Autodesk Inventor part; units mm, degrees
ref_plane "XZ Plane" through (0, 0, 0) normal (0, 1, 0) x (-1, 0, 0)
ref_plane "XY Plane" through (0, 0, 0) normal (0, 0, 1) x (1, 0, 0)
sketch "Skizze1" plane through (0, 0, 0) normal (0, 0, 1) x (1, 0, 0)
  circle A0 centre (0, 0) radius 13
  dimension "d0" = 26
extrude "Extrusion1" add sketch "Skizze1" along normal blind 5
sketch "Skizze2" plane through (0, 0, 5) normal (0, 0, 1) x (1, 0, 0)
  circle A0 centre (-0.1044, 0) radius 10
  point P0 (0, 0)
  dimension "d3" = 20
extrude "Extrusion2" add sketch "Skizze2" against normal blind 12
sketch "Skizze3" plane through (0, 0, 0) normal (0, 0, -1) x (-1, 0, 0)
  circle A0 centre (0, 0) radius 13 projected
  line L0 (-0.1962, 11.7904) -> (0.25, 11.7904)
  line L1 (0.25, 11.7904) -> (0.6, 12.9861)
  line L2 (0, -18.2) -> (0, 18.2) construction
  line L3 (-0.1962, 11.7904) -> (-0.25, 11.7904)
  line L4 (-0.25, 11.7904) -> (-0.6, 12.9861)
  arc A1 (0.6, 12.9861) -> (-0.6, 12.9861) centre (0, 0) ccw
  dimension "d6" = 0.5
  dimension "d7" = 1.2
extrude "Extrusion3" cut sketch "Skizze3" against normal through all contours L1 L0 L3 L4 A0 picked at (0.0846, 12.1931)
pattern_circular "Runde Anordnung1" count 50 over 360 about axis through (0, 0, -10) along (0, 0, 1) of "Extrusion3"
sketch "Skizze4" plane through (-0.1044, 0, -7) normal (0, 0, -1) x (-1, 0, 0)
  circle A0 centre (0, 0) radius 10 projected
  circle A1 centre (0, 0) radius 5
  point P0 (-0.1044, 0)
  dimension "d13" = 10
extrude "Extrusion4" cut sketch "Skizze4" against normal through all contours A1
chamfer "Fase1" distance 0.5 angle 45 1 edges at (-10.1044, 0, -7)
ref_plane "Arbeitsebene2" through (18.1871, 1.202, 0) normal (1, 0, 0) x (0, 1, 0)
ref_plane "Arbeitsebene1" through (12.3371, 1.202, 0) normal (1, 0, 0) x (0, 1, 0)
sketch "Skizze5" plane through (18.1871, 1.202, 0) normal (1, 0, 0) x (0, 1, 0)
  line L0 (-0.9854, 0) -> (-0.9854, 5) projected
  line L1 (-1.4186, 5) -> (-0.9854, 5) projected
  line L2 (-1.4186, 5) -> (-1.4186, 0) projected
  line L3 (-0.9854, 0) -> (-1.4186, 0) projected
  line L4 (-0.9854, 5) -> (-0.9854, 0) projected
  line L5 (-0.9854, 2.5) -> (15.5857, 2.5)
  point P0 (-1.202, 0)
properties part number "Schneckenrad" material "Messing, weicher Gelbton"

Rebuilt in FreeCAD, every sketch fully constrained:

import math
import FreeCAD as App
import Part
import Sketcher
from FreeCAD import Vector
Q = App.Units.Quantity


def edges_at(feature, points):
    """Names of the edges that pass closest to the given points."""
    edges = feature.Shape.Edges
    near = lambda p: min(range(len(edges)), key=lambda i: edges[i].distToShape(Part.Vertex(*p))[0])
    return sorted({f"Edge{near(p) + 1}" for p in points})

doc = App.newDocument("Part")
body = doc.addObject("PartDesign::Body", "Body")

# Sketch on XY plane
sketch1 = doc.addObject("Sketcher::SketchObject", "Sketch")
body.addObject(sketch1)
sketch1.AttachmentSupport = (doc.XY_Plane, [""])
sketch1.MapMode = "FlatFace"
sketch1.addGeometry(Part.Circle(Vector(0, 0, 0), Vector(0, 0, 1), 13), False)
sketch1.addConstraint(Sketcher.Constraint("Coincident", 0, 3, -1, 1))
sketch1.addConstraint(Sketcher.Constraint("Diameter", 0, Q("26 mm")))
pad1 = doc.addObject("PartDesign::Pad", "Pad")
body.addObject(pad1)
pad1.Profile = sketch1
pad1.Length = 5

# Sketch on XY plane
sketch2 = doc.addObject("Sketcher::SketchObject", "Sketch001")
body.addObject(sketch2)
sketch2.AttachmentSupport = (doc.XY_Plane, [""])
sketch2.MapMode = "FlatFace"
sketch2.AttachmentOffset = App.Placement(Vector(0, 0, 5), App.Rotation())
sketch2.addGeometry(Part.Circle(Vector(0, 0, 0), Vector(0, 0, 1), 10), False)
sketch2.addConstraint(Sketcher.Constraint("PointOnObject", 0, 3, -1))
sketch2.addConstraint(Sketcher.Constraint("Diameter", 0, Q("20 mm")))
sketch2.addConstraint(Sketcher.Constraint("DistanceX", 0, 3, -1, 1, Q("0.1044 mm")))
pad2 = doc.addObject("PartDesign::Pad", "Pad001")
body.addObject(pad2)
pad2.Profile = sketch2
pad2.Length = 12
pad2.Reversed = True

# Sketch on XY plane
sketch3 = doc.addObject("Sketcher::SketchObject", "Sketch002")
body.addObject(sketch3)
sketch3.AttachmentSupport = (doc.XY_Plane, [""])
sketch3.MapMode = "FlatFace"
sketch3.addGeometry(Part.LineSegment(Vector(-0.2, 11.8, 0), Vector(-0.6, 13, 0)), False)
sketch3.addGeometry(Part.ArcOfCircle(Part.Circle(Vector(0, 0, 0), Vector(0, 0, 1), 13), math.radians(87.35), math.radians(92.65)), False)
sketch3.addGeometry(Part.LineSegment(Vector(0.6, 13, 0), Vector(0.2, 11.8, 0)), False)
sketch3.addGeometry(Part.LineSegment(Vector(0.2, 11.8, 0), Vector(-0.2, 11.8, 0)), False)
sketch3.addConstraint(Sketcher.Constraint("Coincident", 0, 2, 1, 2))
sketch3.addConstraint(Sketcher.Constraint("Coincident", 1, 1, 2, 1))
sketch3.addConstraint(Sketcher.Constraint("Coincident", 2, 2, 3, 1))
sketch3.addConstraint(Sketcher.Constraint("Coincident", 3, 2, 0, 1))
sketch3.addConstraint(Sketcher.Constraint("Horizontal", 3))
sketch3.addConstraint(Sketcher.Constraint("Coincident", 1, 3, -1, 1))
sketch3.addConstraint(Sketcher.Constraint("Horizontal", 0, 2, 1, 1))
sketch3.addConstraint(Sketcher.Constraint("Equal", 0, 2))
sketch3.addConstraint(Sketcher.Constraint("DistanceX", 3, 2, 3, 1, Q("0.5 mm")))
sketch3.addConstraint(Sketcher.Constraint("Radius", 1, Q("13 mm")))
sketch3.addConstraint(Sketcher.Constraint("DistanceX", 0, 2, 1, 1, Q("1.2 mm")))
sketch3.addConstraint(Sketcher.Constraint("Distance", 0, Q("1.2459 mm")))
pocket1 = doc.addObject("PartDesign::Pocket", "Pocket")
body.addObject(pocket1)
pocket1.Profile = sketch3
pocket1.Type = "ThroughAll"
pocket1.Reversed = True
doc.recompute()

polarpattern = doc.addObject("PartDesign::PolarPattern", "PolarPattern")
body.addObject(polarpattern)
polarpattern.Originals = [pocket1]
polarpattern.Axis = (doc.Z_Axis, [""])
polarpattern.Angle = 360
polarpattern.Occurrences = 50
body.Tip = polarpattern

# Sketch on XY plane
sketch4 = doc.addObject("Sketcher::SketchObject", "Sketch003")
body.addObject(sketch4)
sketch4.AttachmentSupport = (doc.XY_Plane, [""])
sketch4.MapMode = "FlatFace"
sketch4.AttachmentOffset = App.Placement(Vector(0, 0, -7), App.Rotation())
sketch4.addGeometry(Part.Circle(Vector(0, 0, 0), Vector(0, 0, 1), 5), False)
sketch4.addConstraint(Sketcher.Constraint("PointOnObject", 0, 3, -1))
sketch4.addConstraint(Sketcher.Constraint("Diameter", 0, Q("10 mm")))
sketch4.addConstraint(Sketcher.Constraint("DistanceX", 0, 3, -1, 1, Q("0.1044 mm")))
pocket2 = doc.addObject("PartDesign::Pocket", "Pocket001")
body.addObject(pocket2)
pocket2.Profile = sketch4
pocket2.Type = "ThroughAll"
pocket2.Reversed = True
doc.recompute()

chamfer = doc.addObject("PartDesign::Chamfer", "Chamfer")
body.addObject(chamfer)
chamfer.Base = (pocket2, edges_at(pocket2, [(-10.104, 0, -7)]))
chamfer.Size = 0.5

doc.recompute()
